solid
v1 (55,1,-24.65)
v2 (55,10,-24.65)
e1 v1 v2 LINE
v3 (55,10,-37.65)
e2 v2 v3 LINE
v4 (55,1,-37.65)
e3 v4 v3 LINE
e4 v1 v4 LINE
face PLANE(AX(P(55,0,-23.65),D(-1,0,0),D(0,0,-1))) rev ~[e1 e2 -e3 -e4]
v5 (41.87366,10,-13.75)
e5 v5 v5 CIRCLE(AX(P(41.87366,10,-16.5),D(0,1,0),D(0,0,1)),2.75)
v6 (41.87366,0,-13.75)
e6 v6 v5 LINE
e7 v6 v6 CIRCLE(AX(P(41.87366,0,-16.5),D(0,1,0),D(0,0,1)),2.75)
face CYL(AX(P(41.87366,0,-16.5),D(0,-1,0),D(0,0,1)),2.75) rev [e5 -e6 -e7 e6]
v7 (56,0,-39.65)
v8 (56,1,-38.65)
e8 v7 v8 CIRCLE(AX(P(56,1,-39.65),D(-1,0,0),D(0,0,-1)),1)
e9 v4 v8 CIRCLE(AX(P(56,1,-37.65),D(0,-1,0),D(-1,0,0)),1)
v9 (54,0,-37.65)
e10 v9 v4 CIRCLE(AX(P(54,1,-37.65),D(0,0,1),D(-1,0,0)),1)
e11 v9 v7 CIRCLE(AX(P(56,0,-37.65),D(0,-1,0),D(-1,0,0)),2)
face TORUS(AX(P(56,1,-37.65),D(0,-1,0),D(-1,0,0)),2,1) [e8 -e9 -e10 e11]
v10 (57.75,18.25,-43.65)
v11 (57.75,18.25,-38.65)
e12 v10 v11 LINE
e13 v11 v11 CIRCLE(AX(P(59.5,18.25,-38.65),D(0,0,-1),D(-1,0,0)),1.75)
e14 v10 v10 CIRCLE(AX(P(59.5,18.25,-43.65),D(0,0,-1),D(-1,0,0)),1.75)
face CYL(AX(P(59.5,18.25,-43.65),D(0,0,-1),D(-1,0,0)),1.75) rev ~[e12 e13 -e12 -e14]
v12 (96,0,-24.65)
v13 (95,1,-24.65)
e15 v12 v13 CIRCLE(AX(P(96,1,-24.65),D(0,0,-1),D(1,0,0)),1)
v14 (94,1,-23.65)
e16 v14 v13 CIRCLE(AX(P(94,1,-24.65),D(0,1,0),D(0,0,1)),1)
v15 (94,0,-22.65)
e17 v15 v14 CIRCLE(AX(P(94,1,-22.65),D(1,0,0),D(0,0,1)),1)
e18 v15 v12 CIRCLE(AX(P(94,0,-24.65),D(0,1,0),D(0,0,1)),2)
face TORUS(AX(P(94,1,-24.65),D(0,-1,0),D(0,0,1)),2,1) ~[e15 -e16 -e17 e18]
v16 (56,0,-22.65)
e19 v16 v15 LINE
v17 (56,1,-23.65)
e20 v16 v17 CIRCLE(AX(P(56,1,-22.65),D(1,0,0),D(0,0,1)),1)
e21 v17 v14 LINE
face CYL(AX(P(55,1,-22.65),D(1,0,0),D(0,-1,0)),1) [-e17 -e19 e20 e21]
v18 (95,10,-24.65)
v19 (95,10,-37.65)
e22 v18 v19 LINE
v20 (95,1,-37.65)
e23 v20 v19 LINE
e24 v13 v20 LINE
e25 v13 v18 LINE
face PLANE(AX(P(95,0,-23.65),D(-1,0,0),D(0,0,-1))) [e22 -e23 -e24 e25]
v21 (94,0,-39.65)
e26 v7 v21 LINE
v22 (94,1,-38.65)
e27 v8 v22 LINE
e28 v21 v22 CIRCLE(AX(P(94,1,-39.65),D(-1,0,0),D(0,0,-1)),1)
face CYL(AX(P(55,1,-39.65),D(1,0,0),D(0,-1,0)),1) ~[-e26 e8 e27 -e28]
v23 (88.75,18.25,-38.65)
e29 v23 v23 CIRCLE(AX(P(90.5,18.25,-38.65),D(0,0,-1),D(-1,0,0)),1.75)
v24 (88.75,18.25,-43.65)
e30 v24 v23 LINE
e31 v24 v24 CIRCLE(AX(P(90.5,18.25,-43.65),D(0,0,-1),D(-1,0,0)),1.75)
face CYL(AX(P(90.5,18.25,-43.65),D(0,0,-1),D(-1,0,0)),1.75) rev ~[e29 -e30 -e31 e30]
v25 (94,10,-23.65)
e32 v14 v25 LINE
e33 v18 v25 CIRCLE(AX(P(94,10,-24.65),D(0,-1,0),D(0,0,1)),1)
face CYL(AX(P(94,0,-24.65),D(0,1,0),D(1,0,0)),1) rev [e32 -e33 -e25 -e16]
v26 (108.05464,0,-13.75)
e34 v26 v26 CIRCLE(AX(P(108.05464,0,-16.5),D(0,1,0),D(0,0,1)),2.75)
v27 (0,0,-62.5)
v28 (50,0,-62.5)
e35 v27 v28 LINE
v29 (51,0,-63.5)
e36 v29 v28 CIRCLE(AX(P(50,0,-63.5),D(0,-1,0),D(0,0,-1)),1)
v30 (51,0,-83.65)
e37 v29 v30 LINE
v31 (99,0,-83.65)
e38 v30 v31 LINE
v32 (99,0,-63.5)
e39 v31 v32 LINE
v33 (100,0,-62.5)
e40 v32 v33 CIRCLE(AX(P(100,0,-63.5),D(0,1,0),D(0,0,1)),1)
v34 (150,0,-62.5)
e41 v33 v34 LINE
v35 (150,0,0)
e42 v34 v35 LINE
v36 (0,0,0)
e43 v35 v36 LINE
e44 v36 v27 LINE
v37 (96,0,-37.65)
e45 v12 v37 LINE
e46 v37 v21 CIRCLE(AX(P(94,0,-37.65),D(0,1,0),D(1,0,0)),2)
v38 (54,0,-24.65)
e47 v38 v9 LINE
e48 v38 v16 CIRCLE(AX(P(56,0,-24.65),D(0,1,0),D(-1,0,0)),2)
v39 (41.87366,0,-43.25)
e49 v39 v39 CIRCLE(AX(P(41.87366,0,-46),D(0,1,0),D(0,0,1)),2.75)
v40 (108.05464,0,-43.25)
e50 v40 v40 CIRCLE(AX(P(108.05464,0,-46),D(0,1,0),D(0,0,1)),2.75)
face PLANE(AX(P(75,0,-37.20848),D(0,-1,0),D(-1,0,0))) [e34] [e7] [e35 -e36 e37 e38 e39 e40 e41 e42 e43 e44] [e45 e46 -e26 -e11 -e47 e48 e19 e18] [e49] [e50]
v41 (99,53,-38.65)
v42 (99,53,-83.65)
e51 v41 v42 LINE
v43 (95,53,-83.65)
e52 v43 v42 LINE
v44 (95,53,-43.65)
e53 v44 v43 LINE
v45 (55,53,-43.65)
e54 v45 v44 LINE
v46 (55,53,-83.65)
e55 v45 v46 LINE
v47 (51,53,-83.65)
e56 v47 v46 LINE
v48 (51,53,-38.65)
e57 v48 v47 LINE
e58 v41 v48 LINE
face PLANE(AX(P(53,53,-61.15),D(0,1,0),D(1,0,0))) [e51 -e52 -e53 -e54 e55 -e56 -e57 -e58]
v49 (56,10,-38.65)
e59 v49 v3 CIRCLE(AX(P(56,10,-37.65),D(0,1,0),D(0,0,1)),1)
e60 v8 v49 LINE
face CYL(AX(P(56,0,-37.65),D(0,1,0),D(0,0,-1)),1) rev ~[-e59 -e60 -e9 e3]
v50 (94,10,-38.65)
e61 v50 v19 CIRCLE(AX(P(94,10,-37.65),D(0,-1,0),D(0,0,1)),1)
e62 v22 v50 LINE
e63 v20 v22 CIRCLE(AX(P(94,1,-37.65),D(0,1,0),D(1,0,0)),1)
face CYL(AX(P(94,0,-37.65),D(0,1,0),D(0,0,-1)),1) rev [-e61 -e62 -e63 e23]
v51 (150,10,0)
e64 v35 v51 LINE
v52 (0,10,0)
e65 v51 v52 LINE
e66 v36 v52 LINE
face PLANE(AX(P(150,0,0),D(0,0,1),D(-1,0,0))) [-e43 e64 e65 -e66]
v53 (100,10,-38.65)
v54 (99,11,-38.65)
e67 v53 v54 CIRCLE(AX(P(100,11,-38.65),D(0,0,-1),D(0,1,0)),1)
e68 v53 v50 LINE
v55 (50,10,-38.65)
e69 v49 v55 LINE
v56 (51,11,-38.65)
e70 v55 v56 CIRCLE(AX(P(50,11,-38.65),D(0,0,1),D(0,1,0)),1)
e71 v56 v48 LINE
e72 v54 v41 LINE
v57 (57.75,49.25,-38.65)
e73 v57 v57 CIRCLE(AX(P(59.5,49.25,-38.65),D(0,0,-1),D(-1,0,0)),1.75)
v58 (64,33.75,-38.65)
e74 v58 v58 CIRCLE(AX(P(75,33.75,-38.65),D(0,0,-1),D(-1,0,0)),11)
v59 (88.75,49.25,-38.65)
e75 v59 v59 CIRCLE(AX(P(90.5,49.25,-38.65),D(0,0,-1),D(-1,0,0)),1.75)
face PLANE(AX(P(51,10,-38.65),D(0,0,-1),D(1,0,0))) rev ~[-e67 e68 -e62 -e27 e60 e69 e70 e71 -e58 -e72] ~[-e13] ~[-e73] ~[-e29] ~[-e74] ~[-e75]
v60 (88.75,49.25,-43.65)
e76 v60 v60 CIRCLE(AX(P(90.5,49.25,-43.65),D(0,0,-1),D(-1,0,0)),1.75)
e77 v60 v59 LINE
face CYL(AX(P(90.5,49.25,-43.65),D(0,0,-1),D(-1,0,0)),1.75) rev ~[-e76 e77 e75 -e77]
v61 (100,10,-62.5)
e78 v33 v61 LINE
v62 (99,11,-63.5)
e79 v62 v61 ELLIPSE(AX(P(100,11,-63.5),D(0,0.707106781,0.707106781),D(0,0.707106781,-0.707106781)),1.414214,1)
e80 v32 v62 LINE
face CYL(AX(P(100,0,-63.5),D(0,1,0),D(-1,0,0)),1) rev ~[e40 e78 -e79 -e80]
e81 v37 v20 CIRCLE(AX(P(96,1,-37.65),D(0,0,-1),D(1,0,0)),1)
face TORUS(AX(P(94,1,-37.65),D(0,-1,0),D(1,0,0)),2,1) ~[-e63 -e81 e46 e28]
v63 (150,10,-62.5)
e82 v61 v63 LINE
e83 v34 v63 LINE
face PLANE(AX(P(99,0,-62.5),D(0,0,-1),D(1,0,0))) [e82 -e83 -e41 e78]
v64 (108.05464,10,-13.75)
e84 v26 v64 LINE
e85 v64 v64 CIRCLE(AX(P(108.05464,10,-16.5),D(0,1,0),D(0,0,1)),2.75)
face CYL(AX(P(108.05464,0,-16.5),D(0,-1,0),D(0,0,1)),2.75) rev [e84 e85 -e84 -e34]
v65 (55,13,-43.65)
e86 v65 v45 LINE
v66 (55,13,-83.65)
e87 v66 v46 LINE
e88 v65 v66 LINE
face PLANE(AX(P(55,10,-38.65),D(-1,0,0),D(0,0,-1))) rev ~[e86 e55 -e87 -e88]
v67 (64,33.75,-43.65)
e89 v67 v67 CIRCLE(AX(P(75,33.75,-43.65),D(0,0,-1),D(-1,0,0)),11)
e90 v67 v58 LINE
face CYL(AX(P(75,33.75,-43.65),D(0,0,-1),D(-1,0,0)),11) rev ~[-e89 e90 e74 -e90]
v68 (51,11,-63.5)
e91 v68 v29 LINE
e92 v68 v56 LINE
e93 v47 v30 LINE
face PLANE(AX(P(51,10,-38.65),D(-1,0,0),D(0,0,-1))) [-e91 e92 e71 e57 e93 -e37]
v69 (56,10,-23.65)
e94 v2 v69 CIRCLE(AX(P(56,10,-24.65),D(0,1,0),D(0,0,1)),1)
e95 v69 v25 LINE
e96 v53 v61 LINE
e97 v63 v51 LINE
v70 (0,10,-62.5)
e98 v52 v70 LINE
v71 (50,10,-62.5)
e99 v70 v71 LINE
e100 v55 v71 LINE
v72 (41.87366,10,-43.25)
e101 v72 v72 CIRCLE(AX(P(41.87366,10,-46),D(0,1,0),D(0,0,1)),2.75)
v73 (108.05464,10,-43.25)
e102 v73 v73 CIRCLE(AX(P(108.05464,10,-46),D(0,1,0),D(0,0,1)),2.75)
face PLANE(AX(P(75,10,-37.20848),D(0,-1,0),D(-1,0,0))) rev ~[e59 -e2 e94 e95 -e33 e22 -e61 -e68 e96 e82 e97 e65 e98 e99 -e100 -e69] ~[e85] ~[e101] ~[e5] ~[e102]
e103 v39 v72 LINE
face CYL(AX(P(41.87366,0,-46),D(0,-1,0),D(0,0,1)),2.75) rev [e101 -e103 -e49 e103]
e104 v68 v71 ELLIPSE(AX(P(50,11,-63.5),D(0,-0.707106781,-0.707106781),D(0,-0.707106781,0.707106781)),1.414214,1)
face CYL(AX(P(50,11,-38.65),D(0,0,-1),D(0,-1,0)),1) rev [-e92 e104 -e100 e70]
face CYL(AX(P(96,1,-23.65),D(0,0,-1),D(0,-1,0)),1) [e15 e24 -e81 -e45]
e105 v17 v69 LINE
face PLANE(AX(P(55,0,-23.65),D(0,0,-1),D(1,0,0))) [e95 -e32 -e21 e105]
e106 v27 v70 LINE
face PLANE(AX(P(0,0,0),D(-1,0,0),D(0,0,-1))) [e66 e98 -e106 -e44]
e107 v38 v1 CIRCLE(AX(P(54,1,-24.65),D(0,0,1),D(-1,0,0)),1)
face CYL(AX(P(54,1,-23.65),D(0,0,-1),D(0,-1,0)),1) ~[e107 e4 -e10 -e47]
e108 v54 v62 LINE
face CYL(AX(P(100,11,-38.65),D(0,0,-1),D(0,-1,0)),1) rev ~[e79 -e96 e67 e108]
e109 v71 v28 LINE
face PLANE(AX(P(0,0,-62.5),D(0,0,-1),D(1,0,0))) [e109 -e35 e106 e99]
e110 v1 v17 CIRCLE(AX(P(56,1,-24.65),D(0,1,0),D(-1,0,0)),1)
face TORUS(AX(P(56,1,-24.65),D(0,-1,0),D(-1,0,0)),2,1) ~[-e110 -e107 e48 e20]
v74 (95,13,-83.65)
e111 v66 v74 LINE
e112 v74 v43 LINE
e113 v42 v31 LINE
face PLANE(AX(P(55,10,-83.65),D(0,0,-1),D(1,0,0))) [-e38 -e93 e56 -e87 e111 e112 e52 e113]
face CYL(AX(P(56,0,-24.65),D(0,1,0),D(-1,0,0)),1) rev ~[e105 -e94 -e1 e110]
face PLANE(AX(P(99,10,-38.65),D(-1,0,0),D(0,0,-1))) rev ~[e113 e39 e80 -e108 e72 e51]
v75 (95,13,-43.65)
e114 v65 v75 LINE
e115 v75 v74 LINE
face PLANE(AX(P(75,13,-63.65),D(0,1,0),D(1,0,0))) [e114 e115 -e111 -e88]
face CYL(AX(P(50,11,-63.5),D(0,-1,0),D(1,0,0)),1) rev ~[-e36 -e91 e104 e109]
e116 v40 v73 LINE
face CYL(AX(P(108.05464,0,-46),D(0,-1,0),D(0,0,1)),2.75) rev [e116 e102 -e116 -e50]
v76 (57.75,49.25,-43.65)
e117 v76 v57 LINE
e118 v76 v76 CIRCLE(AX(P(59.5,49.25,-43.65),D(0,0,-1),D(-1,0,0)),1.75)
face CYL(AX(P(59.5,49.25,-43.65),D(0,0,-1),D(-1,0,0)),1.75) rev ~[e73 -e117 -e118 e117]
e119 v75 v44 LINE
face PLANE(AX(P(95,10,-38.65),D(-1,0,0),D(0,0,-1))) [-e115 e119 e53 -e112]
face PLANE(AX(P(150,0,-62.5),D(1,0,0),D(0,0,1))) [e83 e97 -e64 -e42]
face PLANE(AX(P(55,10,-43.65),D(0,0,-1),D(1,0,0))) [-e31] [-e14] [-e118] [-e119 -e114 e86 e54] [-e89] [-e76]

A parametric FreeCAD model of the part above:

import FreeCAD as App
import Part
import Sketcher
from FreeCAD import Vector


def edges_at(feature, points):
    """Names of the edges that pass closest to the given points."""
    edges = feature.Shape.Edges
    near = lambda p: min(range(len(edges)), key=lambda i: edges[i].distToShape(Part.Vertex(*p))[0])
    return sorted({f"Edge{near(p) + 1}" for p in points})


def add_polygon(sketch, points):
    """Adds a closed chain of lines whose ends are joined by coincident constraints."""
    first, n = sketch.GeometryCount, len(points)
    for a, b in zip(points, points[1:] + points[:1]):
        sketch.addGeometry(Part.LineSegment(App.Vector(*a, 0), App.Vector(*b, 0)), False)
    for i in range(n):
        sketch.addConstraint(Sketcher.Constraint("Coincident", first + i, 2, first + (i + 1) % n, 1))

doc = App.newDocument("Part")
body = doc.addObject("PartDesign::Body", "Body")

# Sketch on XZ plane
sketch1 = body.newObject("Sketcher::SketchObject", "Sketch")
sketch1.AttachmentSupport = (doc.getObject("XZ_Plane"), [""])
sketch1.MapMode = "FlatFace"
add_polygon(sketch1, [(51, -83.7), (51, -62.5), (0, -62.5), (0, 0), (150, 0), (150, -62.5), (99, -62.5), (99, -83.7)])  # lines 0-7
sketch1.addGeometry(Part.Circle(Vector(108.1, -16.5, 0), Vector(0, 0, 1), 2.8), False)  # 8
add_polygon(sketch1, [(55, -23.6), (55, -38.6), (95, -38.6), (95, -23.6)])  # lines 9-12
sketch1.addGeometry(Part.Circle(Vector(41.9, -16.5, 0), Vector(0, 0, 1), 2.8), False)  # 13
sketch1.addGeometry(Part.Circle(Vector(108.1, -46, 0), Vector(0, 0, 1), 2.8), False)  # 14
sketch1.addGeometry(Part.Circle(Vector(41.9, -46, 0), Vector(0, 0, 1), 2.8), False)  # 15
sketch1.addConstraint([
    Sketcher.Constraint("Vertical", 0),
    Sketcher.Constraint("Horizontal", 1),
    Sketcher.Constraint("Vertical", 2),
    Sketcher.Constraint("Horizontal", 3),
    Sketcher.Constraint("Vertical", 4),
    Sketcher.Constraint("Horizontal", 5),
    Sketcher.Constraint("Vertical", 6),
    Sketcher.Constraint("Horizontal", 7),
    Sketcher.Constraint("Vertical", 9),
    Sketcher.Constraint("Horizontal", 10),
    Sketcher.Constraint("Vertical", 11),
    Sketcher.Constraint("Horizontal", 12),
    Sketcher.Constraint("Coincident", 2, 2, -1, 1),
    Sketcher.Constraint("Equal", 8, 13),
    Sketcher.Constraint("Equal", 13, 14),
    Sketcher.Constraint("Equal", 14, 15),
    Sketcher.Constraint("Horizontal", 8, 3, 13, 3),
    Sketcher.Constraint("Horizontal", 14, 3, 15, 3),
    Sketcher.Constraint("Horizontal", 1, 2, 4, 2),
    Sketcher.Constraint("Vertical", 8, 3, 14, 3),
    Sketcher.Constraint("Vertical", 13, 3, 15, 3),
    Sketcher.Constraint("Equal", 1, 5),
    Sketcher.Constraint("Diameter", 8, 5.5),
    Sketcher.Constraint("DistanceX", 1, 2, 1, 1, 51.0),
    Sketcher.Constraint("DistanceX", 3, 1, 3, 2, 150.0),
    Sketcher.Constraint("DistanceX", 10, 1, 10, 2, 40.0),
    Sketcher.Constraint("DistanceY", 9, 2, 9, 1, 15.0),
    Sketcher.Constraint("DistanceY", 2, 1, 2, 2, 62.5),
    Sketcher.Constraint("DistanceY", 14, 3, -1, 1, 46.0),
    Sketcher.Constraint("DistanceX", -1, 1, 9, 2, 55.0),
    Sketcher.Constraint("DistanceY", 0, 2, 13, 3, 46.0),
    Sketcher.Constraint("DistanceY", 7, 2, 9, 2, 45.0),
    Sketcher.Constraint("DistanceY", 0, 1, 0, 2, 21.15),
    Sketcher.Constraint("DistanceX", -1, 1, 8, 3, 108.05464),
    Sketcher.Constraint("DistanceX", -1, 1, 13, 3, 41.87366),
])
pad1 = body.newObject("PartDesign::Pad", "Pad")
pad1.Profile = sketch1
pad1.Length = 10
pad1.Reversed = True

# Sketch on XZ plane
sketch2 = body.newObject("Sketcher::SketchObject", "Sketch001")
sketch2.AttachmentSupport = (doc.getObject("XZ_Plane"), [""])
sketch2.MapMode = "FlatFace"
sketch2.AttachmentOffset = App.Placement(Vector(0, 0, -10), App.Rotation())
add_polygon(sketch2, [(55, -44), (55, -39), (95, -39), (95, -44)])  # lines 0-3
sketch2.addConstraint([
    Sketcher.Constraint("Vertical", 0),
    Sketcher.Constraint("Horizontal", 1),
    Sketcher.Constraint("Vertical", 2),
    Sketcher.Constraint("Horizontal", 3),
    Sketcher.Constraint("DistanceX", 1, 1, 1, 2, 40.0),
    Sketcher.Constraint("DistanceY", 0, 1, 0, 2, 5.0),
    Sketcher.Constraint("DistanceX", -1, 1, 0, 2, 55.0),
    Sketcher.Constraint("DistanceY", 0, 2, -1, 1, 38.65),
])
pad2 = body.newObject("PartDesign::Pad", "Pad001")
pad2.Profile = sketch2
pad2.Length = 43
pad2.Reversed = True

# Sketch on XY plane
sketch3 = body.newObject("Sketcher::SketchObject", "Sketch002")
sketch3.AttachmentSupport = (doc.getObject("XY_Plane"), [""])
sketch3.MapMode = "FlatFace"
sketch3.AttachmentOffset = App.Placement(Vector(0, 0, -43.65), App.Rotation())
sketch3.addGeometry(Part.Circle(Vector(59.5, 18.2, 0), Vector(0, 0, 1), 1.8), False)
sketch3.addConstraint([
    Sketcher.Constraint("Diameter", 0, 3.5),
    Sketcher.Constraint("DistanceX", -1, 1, 0, 3, 59.5),
    Sketcher.Constraint("DistanceY", -1, 1, 0, 3, 18.25),
])
pocket1 = body.newObject("PartDesign::Pocket", "Pocket")
pocket1.Profile = sketch3
pocket1.Type = "UpToFirst"
pocket1.Reversed = True

# Sketch on XY plane
sketch4 = body.newObject("Sketcher::SketchObject", "Sketch003")
sketch4.AttachmentSupport = (doc.getObject("XY_Plane"), [""])
sketch4.MapMode = "FlatFace"
sketch4.AttachmentOffset = App.Placement(Vector(0, 0, -43.65), App.Rotation())
sketch4.addGeometry(Part.Circle(Vector(90.5, 18.2, 0), Vector(0, 0, 1), 1.8), False)
sketch4.addConstraint([
    Sketcher.Constraint("Diameter", 0, 3.5),
    Sketcher.Constraint("DistanceX", -1, 1, 0, 3, 90.5),
    Sketcher.Constraint("DistanceY", -1, 1, 0, 3, 18.25),
])
pocket2 = body.newObject("PartDesign::Pocket", "Pocket001")
pocket2.Profile = sketch4
pocket2.Type = "UpToFirst"
pocket2.Reversed = True

# Sketch on XY plane
sketch5 = body.newObject("Sketcher::SketchObject", "Sketch004")
sketch5.AttachmentSupport = (doc.getObject("XY_Plane"), [""])
sketch5.MapMode = "FlatFace"
sketch5.AttachmentOffset = App.Placement(Vector(0, 0, -43.65), App.Rotation())
sketch5.addGeometry(Part.Circle(Vector(75, 34, 0), Vector(0, 0, 1), 11), False)
sketch5.addConstraint([
    Sketcher.Constraint("Diameter", 0, 22.0),
    Sketcher.Constraint("DistanceX", -1, 1, 0, 3, 75.0),
    Sketcher.Constraint("DistanceY", -1, 1, 0, 3, 33.75),
])
pocket3 = body.newObject("PartDesign::Pocket", "Pocket002")
pocket3.Profile = sketch5
pocket3.Type = "UpToFirst"
pocket3.Reversed = True

# Sketch on XY plane
sketch6 = body.newObject("Sketcher::SketchObject", "Sketch005")
sketch6.AttachmentSupport = (doc.getObject("XY_Plane"), [""])
sketch6.MapMode = "FlatFace"
sketch6.AttachmentOffset = App.Placement(Vector(0, 0, -43.65), App.Rotation())
sketch6.addGeometry(Part.Circle(Vector(90.5, 49.2, 0), Vector(0, 0, 1), 1.8), False)
sketch6.addConstraint([
    Sketcher.Constraint("Diameter", 0, 3.5),
    Sketcher.Constraint("DistanceX", -1, 1, 0, 3, 90.5),
    Sketcher.Constraint("DistanceY", -1, 1, 0, 3, 49.25),
])
pocket4 = body.newObject("PartDesign::Pocket", "Pocket003")
pocket4.Profile = sketch6
pocket4.Type = "UpToFirst"
pocket4.Reversed = True

# Sketch on XY plane
sketch7 = body.newObject("Sketcher::SketchObject", "Sketch006")
sketch7.AttachmentSupport = (doc.getObject("XY_Plane"), [""])
sketch7.MapMode = "FlatFace"
sketch7.AttachmentOffset = App.Placement(Vector(0, 0, -43.65), App.Rotation())
sketch7.addGeometry(Part.Circle(Vector(59.5, 49.2, 0), Vector(0, 0, 1), 1.8), False)
sketch7.addConstraint([
    Sketcher.Constraint("Diameter", 0, 3.5),
    Sketcher.Constraint("DistanceX", -1, 1, 0, 3, 59.5),
    Sketcher.Constraint("DistanceY", -1, 1, 0, 3, 49.25),
])
pocket5 = body.newObject("PartDesign::Pocket", "Pocket004")
pocket5.Profile = sketch7
pocket5.Type = "UpToFirst"
pocket5.Reversed = True

# Sketch on XZ plane
sketch8 = body.newObject("Sketcher::SketchObject", "Sketch007")
sketch8.AttachmentSupport = (doc.getObject("XZ_Plane"), [""])
sketch8.MapMode = "FlatFace"
sketch8.AttachmentOffset = App.Placement(Vector(0, 0, -10), App.Rotation())
add_polygon(sketch8, [(51, -83.7), (51, -38.6), (55, -38.6), (55, -83.7)])  # lines 0-3
add_polygon(sketch8, [(95, -83.7), (95, -38.6), (99, -38.6), (99, -83.7)])  # lines 4-7
sketch8.addConstraint([
    Sketcher.Constraint("Vertical", 0),
    Sketcher.Constraint("Horizontal", 1),
    Sketcher.Constraint("Vertical", 2),
    Sketcher.Constraint("Horizontal", 3),
    Sketcher.Constraint("Vertical", 4),
    Sketcher.Constraint("Horizontal", 5),
    Sketcher.Constraint("Vertical", 6),
    Sketcher.Constraint("Horizontal", 7),
    Sketcher.Constraint("Horizontal", 1, 2, 4, 2),
    Sketcher.Constraint("Horizontal", 3, 2, 6, 2),
    Sketcher.Constraint("Equal", 3, 5),
    Sketcher.Constraint("DistanceX", 1, 1, 1, 2, 4.0),
    Sketcher.Constraint("DistanceY", 0, 1, 0, 2, 45.0),
    Sketcher.Constraint("DistanceX", -1, 1, 0, 2, 51.0),
    Sketcher.Constraint("DistanceX", -1, 1, 4, 2, 95.0),
    Sketcher.Constraint("DistanceY", 0, 2, -1, 1, 38.65),
])
pad3 = body.newObject("PartDesign::Pad", "Pad002")
pad3.Profile = sketch8
pad3.Length = 43
pad3.Reversed = True

# Sketch on XZ plane
sketch9 = body.newObject("Sketcher::SketchObject", "Sketch008")
sketch9.AttachmentSupport = (doc.getObject("XZ_Plane"), [""])
sketch9.MapMode = "FlatFace"
sketch9.AttachmentOffset = App.Placement(Vector(0, 0, -10), App.Rotation())
add_polygon(sketch9, [(55, -84), (55, -44), (95, -44), (95, -84)])  # lines 0-3
sketch9.addConstraint([
    Sketcher.Constraint("Vertical", 0),
    Sketcher.Constraint("Horizontal", 1),
    Sketcher.Constraint("Vertical", 2),
    Sketcher.Constraint("Horizontal", 3),
    Sketcher.Constraint("Equal", 3, 0),
    Sketcher.Constraint("DistanceX", 1, 1, 1, 2, 40.0),
    Sketcher.Constraint("DistanceX", -1, 1, 0, 2, 55.0),
    Sketcher.Constraint("DistanceY", 0, 2, -1, 1, 43.65),
])
pad4 = body.newObject("PartDesign::Pad", "Pad003")
pad4.Profile = sketch9
pad4.Length = 3
pad4.Reversed = True
doc.recompute()

fillet = body.newObject("PartDesign::Fillet", "Fillet")
fillet.Base = (pad4, edges_at(pad4, [
    (55, 0, -31.15),
    (75, 0, -23.65),
    (95, 0, -31.15),
    (75, 0, -38.65),
    (55, 5, -38.65),
    (55, 5, -23.65),
    (95, 5, -23.65),
    (95, 5, -38.65),
]))
fillet.Radius = 1
doc.recompute()

fillet2 = body.newObject("PartDesign::Fillet", "Fillet001")
fillet2.Base = (fillet, edges_at(fillet, [(99, 10, -50.575), (51, 10, -50.575)]))
fillet2.Radius = 1
doc.recompute()

fillet3 = body.newObject("PartDesign::Fillet", "Fillet002")
fillet3.Base = (fillet2, edges_at(fillet2, [(99, 5.5, -62.5), (51, 5.5, -62.5)]))
fillet3.Radius = 1

doc.recompute()
